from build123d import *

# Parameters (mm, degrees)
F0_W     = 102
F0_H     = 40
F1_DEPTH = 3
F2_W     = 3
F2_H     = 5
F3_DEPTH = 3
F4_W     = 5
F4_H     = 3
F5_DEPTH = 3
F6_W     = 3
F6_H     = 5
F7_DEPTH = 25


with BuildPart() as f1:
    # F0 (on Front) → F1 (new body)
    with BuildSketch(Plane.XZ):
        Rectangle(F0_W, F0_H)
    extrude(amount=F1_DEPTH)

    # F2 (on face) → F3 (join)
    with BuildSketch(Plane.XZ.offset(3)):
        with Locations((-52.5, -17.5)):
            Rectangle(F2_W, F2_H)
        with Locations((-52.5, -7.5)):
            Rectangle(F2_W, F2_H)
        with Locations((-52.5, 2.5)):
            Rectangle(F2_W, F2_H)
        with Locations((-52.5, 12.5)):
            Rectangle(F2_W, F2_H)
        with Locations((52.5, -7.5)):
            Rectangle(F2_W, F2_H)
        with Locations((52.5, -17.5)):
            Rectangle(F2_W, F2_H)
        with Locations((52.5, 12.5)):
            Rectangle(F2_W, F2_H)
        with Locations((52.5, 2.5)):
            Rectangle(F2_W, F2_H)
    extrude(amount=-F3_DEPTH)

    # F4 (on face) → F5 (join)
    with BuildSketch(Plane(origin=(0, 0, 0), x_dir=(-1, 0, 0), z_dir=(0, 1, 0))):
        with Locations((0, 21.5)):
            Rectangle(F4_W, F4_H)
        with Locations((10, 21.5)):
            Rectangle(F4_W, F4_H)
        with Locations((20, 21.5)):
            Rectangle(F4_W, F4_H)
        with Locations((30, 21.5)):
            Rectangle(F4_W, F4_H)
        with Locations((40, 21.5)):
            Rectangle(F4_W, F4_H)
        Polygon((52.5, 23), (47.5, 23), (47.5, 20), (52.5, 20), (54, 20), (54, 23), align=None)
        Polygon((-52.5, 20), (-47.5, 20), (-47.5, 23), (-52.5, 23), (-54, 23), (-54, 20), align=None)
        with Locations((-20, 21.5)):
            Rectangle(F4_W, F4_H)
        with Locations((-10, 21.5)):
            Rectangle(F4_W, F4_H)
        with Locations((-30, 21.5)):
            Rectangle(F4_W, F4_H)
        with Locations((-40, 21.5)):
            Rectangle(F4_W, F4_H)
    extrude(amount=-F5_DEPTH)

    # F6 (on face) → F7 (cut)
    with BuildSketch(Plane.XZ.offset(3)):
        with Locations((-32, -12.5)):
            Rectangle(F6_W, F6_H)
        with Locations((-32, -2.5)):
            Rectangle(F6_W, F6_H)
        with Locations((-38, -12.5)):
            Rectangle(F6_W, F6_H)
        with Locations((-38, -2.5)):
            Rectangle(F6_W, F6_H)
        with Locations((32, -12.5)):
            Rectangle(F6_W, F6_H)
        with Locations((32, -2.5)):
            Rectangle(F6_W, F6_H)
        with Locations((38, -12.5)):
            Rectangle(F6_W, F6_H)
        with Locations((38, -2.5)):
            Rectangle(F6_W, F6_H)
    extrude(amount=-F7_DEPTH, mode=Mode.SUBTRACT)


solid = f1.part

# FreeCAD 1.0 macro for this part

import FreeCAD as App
import Part
import Sketcher
from FreeCAD import Vector


def add_polygon(sketch, points):
    """Adds a closed chain of lines whose ends are joined by coincident constraints."""
    first, n = sketch.GeometryCount, len(points)
    for a, b in zip(points, points[1:] + points[:1]):
        sketch.addGeometry(Part.LineSegment(App.Vector(*a, 0), App.Vector(*b, 0)), False)
    for i in range(n):
        sketch.addConstraint(Sketcher.Constraint("Coincident", first + i, 2, first + (i + 1) % n, 1))

doc = App.newDocument("Part")
body = doc.addObject("PartDesign::Body", "Body")

# Sketch on XZ plane
sketch1 = body.newObject("Sketcher::SketchObject", "Sketch")
sketch1.AttachmentSupport = (doc.getObject("XZ_Plane"), [""])
sketch1.MapMode = "FlatFace"
add_polygon(sketch1, [(-51, 20), (-51, -20), (51, -20), (51, 20)])  # lines 0-3
sketch1.addConstraint([
    Sketcher.Constraint("Vertical", 0),
    Sketcher.Constraint("Horizontal", 1),
    Sketcher.Constraint("Vertical", 2),
    Sketcher.Constraint("Horizontal", 3),
    Sketcher.Constraint("Symmetric", 0, 2, 2, 2, -1, 1),
    Sketcher.Constraint("DistanceX", 1, 1, 1, 2, 102.0),
    Sketcher.Constraint("DistanceY", 0, 2, 0, 1, 40.0),
])
pad1 = body.newObject("PartDesign::Pad", "Pad")
pad1.Profile = sketch1
pad1.Length = 3

# Sketch on XZ plane
sketch2 = body.newObject("Sketcher::SketchObject", "Sketch001")
sketch2.AttachmentSupport = (doc.getObject("XZ_Plane"), [""])
sketch2.MapMode = "FlatFace"
sketch2.AttachmentOffset = App.Placement(Vector(0, 0, 3), App.Rotation())
add_polygon(sketch2, [(-54, -15), (-54, -20), (-51, -20), (-51, -15)])  # lines 0-3
add_polygon(sketch2, [(-54, -5), (-54, -10), (-51, -10), (-51, -5)])  # lines 4-7
add_polygon(sketch2, [(-54, 5), (-54, 0), (-51, 0), (-51, 5)])  # lines 8-11
add_polygon(sketch2, [(-54, 15), (-54, 10), (-51, 10), (-51, 15)])  # lines 12-15
add_polygon(sketch2, [(51, -5), (51, -10), (54, -10), (54, -5)])  # lines 16-19
add_polygon(sketch2, [(51, -15), (51, -20), (54, -20), (54, -15)])  # lines 20-23
add_polygon(sketch2, [(51, 15), (51, 10), (54, 10), (54, 15)])  # lines 24-27
add_polygon(sketch2, [(51, 5), (51, 0), (54, 0), (54, 5)])  # lines 28-31
sketch2.addConstraint([
    Sketcher.Constraint("Vertical", 0),
    Sketcher.Constraint("Horizontal", 1),
    Sketcher.Constraint("Vertical", 2),
    Sketcher.Constraint("Horizontal", 3),
    Sketcher.Constraint("Vertical", 4),
    Sketcher.Constraint("Horizontal", 5),
    Sketcher.Constraint("Vertical", 6),
    Sketcher.Constraint("Horizontal", 7),
    Sketcher.Constraint("Vertical", 8),
    Sketcher.Constraint("Horizontal", 9),
    Sketcher.Constraint("Vertical", 10),
    Sketcher.Constraint("Horizontal", 11),
    Sketcher.Constraint("Vertical", 12),
    Sketcher.Constraint("Horizontal", 13),
    Sketcher.Constraint("Vertical", 14),
    Sketcher.Constraint("Horizontal", 15),
    Sketcher.Constraint("Vertical", 16),
    Sketcher.Constraint("Horizontal", 17),
    Sketcher.Constraint("Vertical", 18),
    Sketcher.Constraint("Horizontal", 19),
    Sketcher.Constraint("Vertical", 20),
    Sketcher.Constraint("Horizontal", 21),
    Sketcher.Constraint("Vertical", 22),
    Sketcher.Constraint("Horizontal", 23),
    Sketcher.Constraint("Vertical", 24),
    Sketcher.Constraint("Horizontal", 25),
    Sketcher.Constraint("Vertical", 26),
    Sketcher.Constraint("Horizontal", 27),
    Sketcher.Constraint("Vertical", 28),
    Sketcher.Constraint("Horizontal", 29),
    Sketcher.Constraint("Vertical", 30),
    Sketcher.Constraint("Horizontal", 31),
    Sketcher.Constraint("Symmetric", 13, 2, 16, 2, -1, 1),
    Sketcher.Constraint("Symmetric", 11, 2, 18, 2, -1, 1),
    Sketcher.Constraint("Symmetric", 15, 2, 22, 2, -1, 1),
    Sketcher.Constraint("Symmetric", 5, 2, 24, 2, -1, 1),
    Sketcher.Constraint("Symmetric", 3, 2, 26, 2, -1, 1),
    Sketcher.Constraint("Symmetric", 9, 2, 28, 2, -1, 1),
    Sketcher.Constraint("Symmetric", 7, 2, 30, 2, -1, 1),
    Sketcher.Constraint("Symmetric", 5, 2, 16, 2, -2),
    Sketcher.Constraint("Symmetric", 7, 2, 18, 2, -2),
    Sketcher.Constraint("Symmetric", 1, 2, 20, 2, -2),
    Sketcher.Constraint("Symmetric", 3, 2, 22, 2, -2),
    Sketcher.Constraint("PointOnObject", 8, 2, -1),
    Sketcher.Constraint("Vertical", 3, 2, 4, 2),
    Sketcher.Constraint("Vertical", 2, 2, 5, 2),
    Sketcher.Constraint("Vertical", 6, 2, 9, 2),
    Sketcher.Constraint("Equal", 2, 4),
    Sketcher.Constraint("Equal", 6, 8),
    Sketcher.Constraint("Equal", 10, 12),
    Sketcher.Constraint("DistanceX", 1, 1, 1, 2, 3.0),
    Sketcher.Constraint("DistanceY", 0, 2, 0, 1, 5.0),
    Sketcher.Constraint("DistanceX", 0, 2, -1, 1, 54.0),
])
pad2 = body.newObject("PartDesign::Pad", "Pad001")
pad2.Profile = sketch2
pad2.Length = 3
pad2.Reversed = True

# Sketch on XZ plane
sketch3 = body.newObject("Sketcher::SketchObject", "Sketch002")
sketch3.AttachmentSupport = (doc.getObject("XZ_Plane"), [""])
sketch3.MapMode = "FlatFace"
add_polygon(sketch3, [(2.5, 23), (2.5, 20), (-2.5, 20), (-2.5, 23)])  # lines 0-3
add_polygon(sketch3, [(-7.5, 23), (-7.5, 20), (-12.5, 20), (-12.5, 23)])  # lines 4-7
add_polygon(sketch3, [(-17.5, 23), (-17.5, 20), (-22.5, 20), (-22.5, 23)])  # lines 8-11
add_polygon(sketch3, [(-27.5, 23), (-27.5, 20), (-32.5, 20), (-32.5, 23)])  # lines 12-15
add_polygon(sketch3, [(-37.5, 23), (-37.5, 20), (-42.5, 20), (-42.5, 23)])  # lines 16-19
add_polygon(sketch3, [(-47.5, 23), (-47.5, 20), (-54, 20), (-54, 23)])  # lines 20-23
add_polygon(sketch3, [(47.5, 20), (47.5, 23), (54, 23), (54, 20)])  # lines 24-27
add_polygon(sketch3, [(22.5, 23), (22.5, 20), (17.5, 20), (17.5, 23)])  # lines 28-31
add_polygon(sketch3, [(12.5, 23), (12.5, 20), (7.5, 20), (7.5, 23)])  # lines 32-35
add_polygon(sketch3, [(32.5, 23), (32.5, 20), (27.5, 20), (27.5, 23)])  # lines 36-39
add_polygon(sketch3, [(42.5, 23), (42.5, 20), (37.5, 20), (37.5, 23)])  # lines 40-43
sketch3.addConstraint([
    Sketcher.Constraint("Vertical", 0),
    Sketcher.Constraint("Horizontal", 1),
    Sketcher.Constraint("Vertical", 2),
    Sketcher.Constraint("Horizontal", 3),
    Sketcher.Constraint("Vertical", 4),
    Sketcher.Constraint("Horizontal", 5),
    Sketcher.Constraint("Vertical", 6),
    Sketcher.Constraint("Horizontal", 7),
    Sketcher.Constraint("Vertical", 8),
    Sketcher.Constraint("Horizontal", 9),
    Sketcher.Constraint("Vertical", 10),
    Sketcher.Constraint("Horizontal", 11),
    Sketcher.Constraint("Vertical", 12),
    Sketcher.Constraint("Horizontal", 13),
    Sketcher.Constraint("Vertical", 14),
    Sketcher.Constraint("Horizontal", 15),
    Sketcher.Constraint("Vertical", 16),
    Sketcher.Constraint("Horizontal", 17),
    Sketcher.Constraint("Vertical", 18),
    Sketcher.Constraint("Horizontal", 19),
    Sketcher.Constraint("Vertical", 20),
    Sketcher.Constraint("Horizontal", 21),
    Sketcher.Constraint("Vertical", 22),
    Sketcher.Constraint("Horizontal", 23),
    Sketcher.Constraint("Vertical", 24),
    Sketcher.Constraint("Horizontal", 25),
    Sketcher.Constraint("Vertical", 26),
    Sketcher.Constraint("Horizontal", 27),
    Sketcher.Constraint("Vertical", 28),
    Sketcher.Constraint("Horizontal", 29),
    Sketcher.Constraint("Vertical", 30),
    Sketcher.Constraint("Horizontal", 31),
    Sketcher.Constraint("Vertical", 32),
    Sketcher.Constraint("Horizontal", 33),
    Sketcher.Constraint("Vertical", 34),
    Sketcher.Constraint("Horizontal", 35),
    Sketcher.Constraint("Vertical", 36),
    Sketcher.Constraint("Horizontal", 37),
    Sketcher.Constraint("Vertical", 38),
    Sketcher.Constraint("Horizontal", 39),
    Sketcher.Constraint("Vertical", 40),
    Sketcher.Constraint("Horizontal", 41),
    Sketcher.Constraint("Vertical", 42),
    Sketcher.Constraint("Horizontal", 43),
    Sketcher.Constraint("Symmetric", 23, 2, 24, 2, -2),
    Sketcher.Constraint("Symmetric", 21, 2, 26, 2, -2),
    Sketcher.Constraint("Symmetric", 9, 2, 28, 2, -2),
    Sketcher.Constraint("Symmetric", 11, 2, 30, 2, -2),
    Sketcher.Constraint("Symmetric", 5, 2, 32, 2, -2),
    Sketcher.Constraint("Symmetric", 7, 2, 34, 2, -2),
    Sketcher.Constraint("Symmetric", 13, 2, 36, 2, -2),
    Sketcher.Constraint("Symmetric", 15, 2, 38, 2, -2),
    Sketcher.Constraint("Symmetric", 17, 2, 40, 2, -2),
    Sketcher.Constraint("Symmetric", 19, 2, 42, 2, -2),
    Sketcher.Constraint("Horizontal", 1, 2, 4, 2),
    Sketcher.Constraint("Horizontal", 3, 2, 6, 2),
    Sketcher.Constraint("Horizontal", 5, 2, 8, 2),
    Sketcher.Constraint("Horizontal", 7, 2, 10, 2),
    Sketcher.Constraint("Horizontal", 9, 2, 12, 2),
    Sketcher.Constraint("Horizontal", 11, 2, 14, 2),
    Sketcher.Constraint("Horizontal", 13, 2, 16, 2),
    Sketcher.Constraint("Horizontal", 15, 2, 18, 2),
    Sketcher.Constraint("Horizontal", 17, 2, 20, 2),
    Sketcher.Constraint("Horizontal", 19, 2, 22, 2),
    Sketcher.Constraint("Equal", 3, 5),
    Sketcher.Constraint("Equal", 7, 9),
    Sketcher.Constraint("Equal", 11, 13),
    Sketcher.Constraint("Equal", 15, 17),
    Sketcher.Constraint("DistanceX", 1, 2, 1, 1, 5.0),
    Sketcher.Constraint("DistanceY", 0, 2, 0, 1, 3.0),
    Sketcher.Constraint("DistanceX", 21, 2, 21, 1, 6.5),
    Sketcher.Constraint("DistanceY", -1, 1, 0, 2, 20.0),
    Sketcher.Constraint("DistanceX", 21, 2, -1, 1, 54.0),
    Sketcher.Constraint("DistanceX", 4, 2, 1, 2, 5.0),
    Sketcher.Constraint("DistanceX", 8, 2, 5, 2, 5.0),
    Sketcher.Constraint("DistanceX", 12, 2, 9, 2, 5.0),
    Sketcher.Constraint("DistanceX", 16, 2, 13, 2, 5.0),
    Sketcher.Constraint("DistanceX", 20, 2, 17, 2, 5.0),
])
pad3 = body.newObject("PartDesign::Pad", "Pad002")
pad3.Profile = sketch3
pad3.Length = 3

# Sketch on XZ plane
sketch4 = body.newObject("Sketcher::SketchObject", "Sketch003")
sketch4.AttachmentSupport = (doc.getObject("XZ_Plane"), [""])
sketch4.MapMode = "FlatFace"
sketch4.AttachmentOffset = App.Placement(Vector(0, 0, 3), App.Rotation())
add_polygon(sketch4, [(-33.5, -10), (-33.5, -15), (-30.5, -15), (-30.5, -10)])  # lines 0-3
add_polygon(sketch4, [(-33.5, 0), (-33.5, -5), (-30.5, -5), (-30.5, 0)])  # lines 4-7
add_polygon(sketch4, [(-39.5, -10), (-39.5, -15), (-36.5, -15), (-36.5, -10)])  # lines 8-11
add_polygon(sketch4, [(-39.5, 0), (-39.5, -5), (-36.5, -5), (-36.5, 0)])  # lines 12-15
add_polygon(sketch4, [(30.5, -10), (30.5, -15), (33.5, -15), (33.5, -10)])  # lines 16-19
add_polygon(sketch4, [(30.5, 0), (30.5, -5), (33.5, -5), (33.5, 0)])  # lines 20-23
add_polygon(sketch4, [(36.5, -10), (36.5, -15), (39.5, -15), (39.5, -10)])  # lines 24-27
add_polygon(sketch4, [(36.5, 0), (36.5, -5), (39.5, -5), (39.5, 0)])  # lines 28-31
sketch4.addConstraint([
    Sketcher.Constraint("Vertical", 0),
    Sketcher.Constraint("Horizontal", 1),
    Sketcher.Constraint("Vertical", 2),
    Sketcher.Constraint("Horizontal", 3),
    Sketcher.Constraint("Vertical", 4),
    Sketcher.Constraint("Horizontal", 5),
    Sketcher.Constraint("Vertical", 6),
    Sketcher.Constraint("Horizontal", 7),
    Sketcher.Constraint("Vertical", 8),
    Sketcher.Constraint("Horizontal", 9),
    Sketcher.Constraint("Vertical", 10),
    Sketcher.Constraint("Horizontal", 11),
    Sketcher.Constraint("Vertical", 12),
    Sketcher.Constraint("Horizontal", 13),
    Sketcher.Constraint("Vertical", 14),
    Sketcher.Constraint("Horizontal", 15),
    Sketcher.Constraint("Vertical", 16),
    Sketcher.Constraint("Horizontal", 17),
    Sketcher.Constraint("Vertical", 18),
    Sketcher.Constraint("Horizontal", 19),
    Sketcher.Constraint("Vertical", 20),
    Sketcher.Constraint("Horizontal", 21),
    Sketcher.Constraint("Vertical", 22),
    Sketcher.Constraint("Horizontal", 23),
    Sketcher.Constraint("Vertical", 24),
    Sketcher.Constraint("Horizontal", 25),
    Sketcher.Constraint("Vertical", 26),
    Sketcher.Constraint("Horizontal", 27),
    Sketcher.Constraint("Vertical", 28),
    Sketcher.Constraint("Horizontal", 29),
    Sketcher.Constraint("Vertical", 30),
    Sketcher.Constraint("Horizontal", 31),
    Sketcher.Constraint("Symmetric", 7, 2, 22, 2, -1, 1),
    Sketcher.Constraint("Symmetric", 15, 2, 30, 2, -1, 1),
    Sketcher.Constraint("Symmetric", 1, 2, 16, 2, -2),
    Sketcher.Constraint("Symmetric", 3, 2, 18, 2, -2),
    Sketcher.Constraint("Symmetric", 5, 2, 20, 2, -2),
    Sketcher.Constraint("Symmetric", 9, 2, 24, 2, -2),
    Sketcher.Constraint("Symmetric", 11, 2, 26, 2, -2),
    Sketcher.Constraint("Symmetric", 13, 2, 28, 2, -2),
    Sketcher.Constraint("PointOnObject", 6, 2, -1),
    Sketcher.Constraint("PointOnObject", 14, 2, -1),
    Sketcher.Constraint("Horizontal", 1, 2, 8, 2),
    Sketcher.Constraint("Horizontal", 3, 2, 10, 2),
    Sketcher.Constraint("Horizontal", 5, 2, 12, 2),
    Sketcher.Constraint("Vertical", 3, 2, 4, 2),
    Sketcher.Constraint("Vertical", 2, 2, 5, 2),
    Sketcher.Constraint("Vertical", 11, 2, 12, 2),
    Sketcher.Constraint("Vertical", 10, 2, 13, 2),
    Sketcher.Constraint("Equal", 7, 9),
    Sketcher.Constraint("Equal", 2, 4),
    Sketcher.Constraint("DistanceX", 1, 1, 1, 2, 3.0),
    Sketcher.Constraint("DistanceY", 0, 2, 0, 1, 5.0),
    Sketcher.Constraint("DistanceY", 0, 2, -1, 1, 15.0),
    Sketcher.Constraint("DistanceX", 8, 2, 0, 2, 6.0),
    Sketcher.Constraint("DistanceX", 1, 2, 16, 2, 61.0),
])
pocket1 = body.newObject("PartDesign::Pocket", "Pocket")
pocket1.Profile = sketch4
pocket1.Length = 25

doc.recompute()
